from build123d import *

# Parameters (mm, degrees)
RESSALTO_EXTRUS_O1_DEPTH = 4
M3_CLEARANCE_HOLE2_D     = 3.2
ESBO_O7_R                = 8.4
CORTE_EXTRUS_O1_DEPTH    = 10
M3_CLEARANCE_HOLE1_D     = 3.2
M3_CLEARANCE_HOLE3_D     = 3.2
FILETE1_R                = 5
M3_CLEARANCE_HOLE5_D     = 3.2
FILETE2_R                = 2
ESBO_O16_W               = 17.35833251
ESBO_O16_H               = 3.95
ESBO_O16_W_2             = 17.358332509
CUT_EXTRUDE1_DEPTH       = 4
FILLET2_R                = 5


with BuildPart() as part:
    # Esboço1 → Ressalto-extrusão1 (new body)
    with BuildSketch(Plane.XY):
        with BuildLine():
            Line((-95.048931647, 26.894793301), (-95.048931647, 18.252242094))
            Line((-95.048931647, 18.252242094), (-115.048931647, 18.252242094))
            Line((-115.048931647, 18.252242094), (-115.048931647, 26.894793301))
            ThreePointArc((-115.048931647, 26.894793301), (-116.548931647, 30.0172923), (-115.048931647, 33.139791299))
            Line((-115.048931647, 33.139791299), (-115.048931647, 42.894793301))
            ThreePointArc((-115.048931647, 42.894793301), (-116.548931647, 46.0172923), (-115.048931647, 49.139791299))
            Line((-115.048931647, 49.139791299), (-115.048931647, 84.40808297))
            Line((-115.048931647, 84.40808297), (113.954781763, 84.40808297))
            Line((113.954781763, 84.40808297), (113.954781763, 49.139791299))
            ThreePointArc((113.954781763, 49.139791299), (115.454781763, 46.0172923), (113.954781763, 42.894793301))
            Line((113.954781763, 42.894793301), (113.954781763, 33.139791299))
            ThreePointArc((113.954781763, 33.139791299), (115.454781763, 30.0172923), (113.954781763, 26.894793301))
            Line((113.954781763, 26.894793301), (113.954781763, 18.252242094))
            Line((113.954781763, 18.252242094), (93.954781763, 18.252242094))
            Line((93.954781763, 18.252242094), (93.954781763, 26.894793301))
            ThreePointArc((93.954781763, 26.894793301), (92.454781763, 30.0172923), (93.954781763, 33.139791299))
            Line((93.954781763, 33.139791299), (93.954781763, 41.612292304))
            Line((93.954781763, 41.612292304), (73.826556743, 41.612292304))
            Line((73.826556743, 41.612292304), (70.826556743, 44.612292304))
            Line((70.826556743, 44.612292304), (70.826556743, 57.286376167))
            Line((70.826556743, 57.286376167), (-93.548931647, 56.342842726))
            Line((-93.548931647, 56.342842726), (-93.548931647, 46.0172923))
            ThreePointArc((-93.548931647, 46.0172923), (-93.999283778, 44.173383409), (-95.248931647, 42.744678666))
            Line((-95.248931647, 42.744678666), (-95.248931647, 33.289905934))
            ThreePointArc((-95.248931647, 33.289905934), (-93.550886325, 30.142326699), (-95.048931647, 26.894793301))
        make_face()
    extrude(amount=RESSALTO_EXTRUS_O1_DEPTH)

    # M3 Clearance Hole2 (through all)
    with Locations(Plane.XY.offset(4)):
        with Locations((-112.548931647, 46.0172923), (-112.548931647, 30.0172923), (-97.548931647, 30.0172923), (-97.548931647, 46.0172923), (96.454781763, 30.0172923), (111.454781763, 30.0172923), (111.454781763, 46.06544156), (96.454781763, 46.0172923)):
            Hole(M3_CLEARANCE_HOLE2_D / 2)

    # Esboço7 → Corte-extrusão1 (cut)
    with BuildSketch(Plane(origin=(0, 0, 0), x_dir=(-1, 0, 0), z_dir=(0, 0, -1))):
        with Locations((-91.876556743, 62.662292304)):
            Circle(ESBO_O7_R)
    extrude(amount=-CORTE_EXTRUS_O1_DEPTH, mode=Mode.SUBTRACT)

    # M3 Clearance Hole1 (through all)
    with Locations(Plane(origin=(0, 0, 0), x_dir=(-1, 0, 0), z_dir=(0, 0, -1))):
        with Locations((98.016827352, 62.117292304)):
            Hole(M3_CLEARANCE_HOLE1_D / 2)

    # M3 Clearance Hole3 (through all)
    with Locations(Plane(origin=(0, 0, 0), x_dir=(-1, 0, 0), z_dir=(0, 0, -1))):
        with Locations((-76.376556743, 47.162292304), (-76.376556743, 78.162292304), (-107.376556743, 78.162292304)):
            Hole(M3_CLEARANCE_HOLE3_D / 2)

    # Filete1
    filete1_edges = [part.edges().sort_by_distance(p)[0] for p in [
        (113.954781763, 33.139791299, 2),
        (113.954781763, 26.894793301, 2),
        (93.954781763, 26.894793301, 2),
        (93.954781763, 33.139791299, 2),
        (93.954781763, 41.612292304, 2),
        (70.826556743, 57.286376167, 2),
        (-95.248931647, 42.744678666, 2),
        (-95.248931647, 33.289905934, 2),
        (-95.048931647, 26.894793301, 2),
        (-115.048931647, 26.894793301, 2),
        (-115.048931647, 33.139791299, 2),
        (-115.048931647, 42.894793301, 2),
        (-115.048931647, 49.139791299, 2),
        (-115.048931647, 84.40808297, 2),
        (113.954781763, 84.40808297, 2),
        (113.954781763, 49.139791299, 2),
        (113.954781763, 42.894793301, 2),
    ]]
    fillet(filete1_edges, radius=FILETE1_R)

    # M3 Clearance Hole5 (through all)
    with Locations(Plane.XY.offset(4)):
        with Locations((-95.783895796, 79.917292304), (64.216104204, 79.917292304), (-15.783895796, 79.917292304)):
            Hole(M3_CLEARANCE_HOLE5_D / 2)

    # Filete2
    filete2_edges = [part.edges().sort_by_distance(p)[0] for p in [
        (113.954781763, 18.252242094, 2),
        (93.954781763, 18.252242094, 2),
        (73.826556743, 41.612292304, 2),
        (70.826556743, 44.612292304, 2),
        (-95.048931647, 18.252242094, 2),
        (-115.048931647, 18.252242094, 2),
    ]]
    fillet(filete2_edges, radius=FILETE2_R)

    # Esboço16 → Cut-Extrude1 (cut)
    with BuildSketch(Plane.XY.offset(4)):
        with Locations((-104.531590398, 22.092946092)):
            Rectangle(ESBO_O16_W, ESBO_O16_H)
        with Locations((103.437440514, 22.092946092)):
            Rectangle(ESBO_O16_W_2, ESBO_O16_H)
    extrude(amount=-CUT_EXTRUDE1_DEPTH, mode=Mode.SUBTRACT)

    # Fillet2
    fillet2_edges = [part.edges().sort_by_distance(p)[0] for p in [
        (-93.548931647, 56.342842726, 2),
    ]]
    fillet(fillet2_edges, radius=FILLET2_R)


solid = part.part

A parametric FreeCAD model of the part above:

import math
import FreeCAD as App
import Part
import Sketcher

V = App.Vector
Q = App.Units.Quantity


def edges_at(feature, points):
    """Names of the edges that pass closest to the given points."""
    edges = feature.Shape.Edges
    near = lambda p: min(range(len(edges)), key=lambda i: edges[i].distToShape(Part.Vertex(*p))[0])
    return sorted({f"Edge{near(p) + 1}" for p in points})

doc = App.newDocument("Part")
params = doc.addObject("Spreadsheet::Sheet", "Params")
for row, (alias, value) in enumerate([
    ("sketch1_radius", "4 mm"),
    ("sketch1_width", "20 mm"),
    ("sketch1_width2", "2.3 mm"),
    ("pad1_length", "4 mm"),
    ("sketch2_diameter", "3.2 mm"),
    ("hole_diameter", "3.2 mm"),
    ("sketch3_diameter", "16.8 mm"),
    ("pocket1_length", "10 mm"),
    ("sketch4_diameter", "3.2 mm"),
    ("hole2_diameter", "3.2 mm"),
    ("sketch5_diameter", "3.2 mm"),
    ("hole3_diameter", "3.2 mm"),
    ("fillet_radius", "5 mm"),
    ("sketch6_diameter", "3.2 mm"),
    ("hole4_diameter", "3.2 mm"),
    ("fillet2_radius", "2 mm"),
    ("sketch7_height", "3.95 mm"),
    ("pocket2_length", "4 mm"),
    ("fillet3_radius", "5 mm"),
], start=1):
    params.set(f"A{row}", alias)
    params.set(f"B{row}", "=" + value)
    params.setAlias(f"B{row}", alias)

body = doc.addObject("PartDesign::Body", "Body")

# Sketch on XY plane
sketch1 = body.newObject("Sketcher::SketchObject", "Sketch")
sketch1.AttachmentSupport = (doc.getObject("XY_Plane"), [""])
sketch1.MapMode = "FlatFace"
sketch1.addGeometry([
    Part.LineSegment(V(-95, 18.3, 0), V(-95, 26.9, 0)),  # 0
    Part.ArcOfCircle(Part.Circle(V(-97.5, 30, 0), V(0, 0, 1), 4), math.radians(-51), math.radians(55)),  # 1
    Part.LineSegment(V(-95.2, 33.3, 0), V(-95.2, 42.7, 0)),  # 2
    Part.ArcOfCircle(Part.Circle(V(-97.5, 46, 0), V(0, 0, 1), 4), math.radians(-55), math.radians(0)),  # 3
    Part.LineSegment(V(-93.5, 46, 0), V(-93.5, 56.3, 0)),  # 4
    Part.LineSegment(V(-93.5, 56.3, 0), V(70.8, 57.3, 0)),  # 5
    Part.LineSegment(V(70.8, 57.3, 0), V(70.8, 44.6, 0)),  # 6
    Part.LineSegment(V(70.8, 44.6, 0), V(73.8, 41.6, 0)),  # 7
    Part.LineSegment(V(73.8, 41.6, 0), V(94, 41.6, 0)),  # 8
    Part.LineSegment(V(94, 41.6, 0), V(94, 33.1, 0)),  # 9
    Part.ArcOfCircle(Part.Circle(V(96.5, 30, 0), V(0, 0, 1), 4), math.radians(129), math.radians(231)),  # 10
    Part.LineSegment(V(94, 26.9, 0), V(94, 18.3, 0)),  # 11
    Part.LineSegment(V(94, 18.3, 0), V(114, 18.3, 0)),  # 12
    Part.LineSegment(V(114, 18.3, 0), V(114, 26.9, 0)),  # 13
    Part.ArcOfCircle(Part.Circle(V(111.5, 30, 0), V(0, 0, 1), 4), math.radians(-51), math.radians(51)),  # 14
    Part.LineSegment(V(114, 33.1, 0), V(114, 42.9, 0)),  # 15
    Part.ArcOfCircle(Part.Circle(V(111.5, 46, 0), V(0, 0, 1), 4), math.radians(-51), math.radians(51)),  # 16
    Part.LineSegment(V(114, 49.1, 0), V(114, 84.4, 0)),  # 17
    Part.LineSegment(V(114, 84.4, 0), V(-115, 84.4, 0)),  # 18
    Part.LineSegment(V(-115, 84.4, 0), V(-115, 49.1, 0)),  # 19
    Part.ArcOfCircle(Part.Circle(V(-112.5, 46, 0), V(0, 0, 1), 4), math.radians(129), math.radians(231)),  # 20
    Part.LineSegment(V(-115, 42.9, 0), V(-115, 33.1, 0)),  # 21
    Part.ArcOfCircle(Part.Circle(V(-112.5, 30, 0), V(0, 0, 1), 4), math.radians(129), math.radians(231)),  # 22
    Part.LineSegment(V(-115, 26.9, 0), V(-115, 18.3, 0)),  # 23
    Part.LineSegment(V(-115, 18.3, 0), V(-95, 18.3, 0)),  # 24
], False)
sketch1.addConstraint([
    Sketcher.Constraint("Coincident", 0, 2, 1, 1),
    Sketcher.Constraint("Coincident", 1, 2, 2, 1),
    Sketcher.Constraint("Coincident", 2, 2, 3, 1),
    Sketcher.Constraint("Tangent", 3, 2, 4, 1),
    Sketcher.Constraint("Coincident", 4, 2, 5, 1),
    Sketcher.Constraint("Coincident", 5, 2, 6, 1),
    Sketcher.Constraint("Coincident", 6, 2, 7, 1),
    Sketcher.Constraint("Coincident", 7, 2, 8, 1),
    Sketcher.Constraint("Coincident", 8, 2, 9, 1),
    Sketcher.Constraint("Coincident", 9, 2, 10, 1),
    Sketcher.Constraint("Coincident", 10, 2, 11, 1),
    Sketcher.Constraint("Coincident", 11, 2, 12, 1),
    Sketcher.Constraint("Coincident", 12, 2, 13, 1),
    Sketcher.Constraint("Coincident", 13, 2, 14, 1),
    Sketcher.Constraint("Coincident", 14, 2, 15, 1),
    Sketcher.Constraint("Coincident", 15, 2, 16, 1),
    Sketcher.Constraint("Coincident", 16, 2, 17, 1),
    Sketcher.Constraint("Coincident", 17, 2, 18, 1),
    Sketcher.Constraint("Coincident", 18, 2, 19, 1),
    Sketcher.Constraint("Coincident", 19, 2, 20, 1),
    Sketcher.Constraint("Coincident", 20, 2, 21, 1),
    Sketcher.Constraint("Coincident", 21, 2, 22, 1),
    Sketcher.Constraint("Coincident", 22, 2, 23, 1),
    Sketcher.Constraint("Coincident", 23, 2, 24, 1),
    Sketcher.Constraint("Coincident", 24, 2, 0, 1),
    Sketcher.Constraint("Vertical", 0),
    Sketcher.Constraint("Vertical", 2),
    Sketcher.Constraint("Vertical", 4),
    Sketcher.Constraint("Vertical", 6),
    Sketcher.Constraint("Horizontal", 8),
    Sketcher.Constraint("Vertical", 9),
    Sketcher.Constraint("Vertical", 11),
    Sketcher.Constraint("Horizontal", 12),
    Sketcher.Constraint("Vertical", 13),
    Sketcher.Constraint("Vertical", 15),
    Sketcher.Constraint("Vertical", 17),
    Sketcher.Constraint("Horizontal", 18),
    Sketcher.Constraint("Vertical", 19),
    Sketcher.Constraint("Vertical", 21),
    Sketcher.Constraint("Vertical", 23),
    Sketcher.Constraint("Horizontal", 24),
    Sketcher.Constraint("Equal", 1, 3),
    Sketcher.Constraint("Equal", 3, 10),
    Sketcher.Constraint("Equal", 10, 14),
    Sketcher.Constraint("Equal", 14, 16),
    Sketcher.Constraint("Equal", 16, 20),
    Sketcher.Constraint("Equal", 20, 22),
    Sketcher.Constraint("Horizontal", 1, 3, 10, 3),
    Sketcher.Constraint("Horizontal", 10, 3, 14, 3),
    Sketcher.Constraint("Horizontal", 3, 3, 16, 3),
    Sketcher.Constraint("Horizontal", 16, 3, 20, 3),
    Sketcher.Constraint("Horizontal", 14, 3, 22, 3),
    Sketcher.Constraint("Horizontal", 0, 2, 10, 2),
    Sketcher.Constraint("Horizontal", 10, 2, 13, 2),
    Sketcher.Constraint("Horizontal", 9, 2, 14, 2),
    Sketcher.Constraint("Horizontal", 16, 2, 19, 2),
    Sketcher.Constraint("Horizontal", 15, 2, 20, 2),
    Sketcher.Constraint("Horizontal", 14, 2, 21, 2),
    Sketcher.Constraint("Horizontal", 13, 2, 22, 2),
    Sketcher.Constraint("Horizontal", 12, 2, 23, 2),
    Sketcher.Constraint("Vertical", 1, 3, 3, 3),
    Sketcher.Constraint("Vertical", 14, 3, 16, 3),
    Sketcher.Constraint("Vertical", 9, 2, 10, 2),
    Sketcher.Constraint("Vertical", 15, 2, 16, 2),
    Sketcher.Constraint("Equal", 12, 24),
    Sketcher.Constraint("Radius", 1, 4.0),
    Sketcher.Constraint("DistanceX", 12, 1, 12, 2, 20.0),
    Sketcher.Constraint("Angle", 7, Q("-45 deg")),
    Sketcher.Constraint("DistanceY", 1, 3, 3, 3, 16.0),
    Sketcher.Constraint("DistanceX", 10, 3, 14, 3, 15.0),
    Sketcher.Constraint("DistanceX", 6, 2, 7, 2, 3.0),
    Sketcher.Constraint("DistanceX", 1, 3, 1, 2, 2.3),
    Sketcher.Constraint("DistanceY", 9, 2, 9, 1, 8.472501),
    Sketcher.Constraint("DistanceY", 0, 1, 0, 2, 8.642551),
    Sketcher.Constraint("DistanceY", 4, 1, 4, 2, 10.32555),
    Sketcher.Constraint("DistanceY", 17, 1, 17, 2, 35.268292),
    Sketcher.Constraint("DistanceX", 8, 1, 8, 2, 20.128225),
    Sketcher.Constraint("DistanceX", 18, 2, 18, 1, 229.003713),
    Sketcher.Constraint("DistanceY", 6, 2, 6, 1, 12.674084),
    Sketcher.Constraint("DistanceX", 1, 3, -1, 1, 97.548932),
    Sketcher.Constraint("DistanceY", -1, 1, 2, 2, 42.744679),
])
sketch1.setExpression("Constraints[65]", "Params.sketch1_radius")
sketch1.setExpression("Constraints[66]", "Params.sketch1_width")
sketch1.setExpression("Constraints[71]", "Params.sketch1_width2")
pad1 = body.newObject("PartDesign::Pad", "Pad")
pad1.Profile = sketch1
pad1.setExpression("Length", "Params.pad1_length")

# Sketch on XY plane
sketch2 = body.newObject("Sketcher::SketchObject", "Sketch001")
sketch2.AttachmentSupport = (doc.getObject("XY_Plane"), [""])
sketch2.MapMode = "FlatFace"
sketch2.AttachmentOffset = App.Placement(V(0, 0, 4), App.Rotation())
sketch2.addGeometry([
    Part.Circle(V(-112.5, 46, 0), V(0, 0, 1), 1.6),  # 0
    Part.Circle(V(-112.5, 30, 0), V(0, 0, 1), 1.6),  # 1
    Part.Circle(V(-97.5, 30, 0), V(0, 0, 1), 1.6),  # 2
    Part.Circle(V(-97.5, 46, 0), V(0, 0, 1), 1.6),  # 3
    Part.Circle(V(96.5, 30, 0), V(0, 0, 1), 1.6),  # 4
    Part.Circle(V(111.5, 30, 0), V(0, 0, 1), 1.6),  # 5
    Part.Circle(V(111.5, 46.1, 0), V(0, 0, 1), 1.6),  # 6
    Part.Circle(V(96.5, 46, 0), V(0, 0, 1), 1.6),  # 7
], False)
sketch2.addConstraint([
    Sketcher.Constraint("Equal", 0, 1),
    Sketcher.Constraint("Equal", 1, 2),
    Sketcher.Constraint("Equal", 2, 3),
    Sketcher.Constraint("Equal", 3, 4),
    Sketcher.Constraint("Equal", 4, 5),
    Sketcher.Constraint("Equal", 5, 6),
    Sketcher.Constraint("Equal", 6, 7),
    Sketcher.Constraint("Horizontal", 1, 3, 2, 3),
    Sketcher.Constraint("Horizontal", 0, 3, 3, 3),
    Sketcher.Constraint("Horizontal", 2, 3, 4, 3),
    Sketcher.Constraint("Horizontal", 4, 3, 5, 3),
    Sketcher.Constraint("Horizontal", 3, 3, 7, 3),
    Sketcher.Constraint("Vertical", 0, 3, 1, 3),
    Sketcher.Constraint("Vertical", 2, 3, 3, 3),
    Sketcher.Constraint("Vertical", 5, 3, 6, 3),
    Sketcher.Constraint("Vertical", 4, 3, 7, 3),
    Sketcher.Constraint("Diameter", 0, 3.2),
    Sketcher.Constraint("DistanceY", 1, 3, 0, 3, 16.0),
    Sketcher.Constraint("DistanceX", 1, 3, 2, 3, 15.0),
    Sketcher.Constraint("DistanceX", 4, 3, 5, 3, 15.0),
    Sketcher.Constraint("DistanceX", 0, 3, -1, 1, 112.548932),
    Sketcher.Constraint("DistanceX", -1, 1, 4, 3, 96.454782),
    Sketcher.Constraint("DistanceY", -1, 1, 6, 3, 46.065442),
    Sketcher.Constraint("DistanceY", 5, 3, 6, 3, 16.048149),
])
sketch2.setExpression("Constraints[16]", "Params.sketch2_diameter")
doc.recompute()
hole = body.newObject("PartDesign::Hole", "Hole")
hole.Profile = sketch2
hole.ThreadType = "None"
hole.setExpression("Diameter", "Params.hole_diameter")
hole.DepthType = "ThroughAll"

# Sketch on XY plane
sketch3 = body.newObject("Sketcher::SketchObject", "Sketch002")
sketch3.AttachmentSupport = (doc.getObject("XY_Plane"), [""])
sketch3.MapMode = "FlatFace"
sketch3.addGeometry(Part.Circle(V(92, 63, 0), V(0, 0, 1), 8), False)
sketch3.addConstraint([
    Sketcher.Constraint("Diameter", 0, 16.8),
    Sketcher.Constraint("DistanceX", -1, 1, 0, 3, 91.876557),
    Sketcher.Constraint("DistanceY", -1, 1, 0, 3, 62.662292),
])
sketch3.setExpression("Constraints[0]", "Params.sketch3_diameter")
pocket1 = body.newObject("PartDesign::Pocket", "Pocket")
pocket1.Profile = sketch3
pocket1.setExpression("Length", "Params.pocket1_length")
pocket1.Reversed = True

# Sketch on XY plane
sketch4 = body.newObject("Sketcher::SketchObject", "Sketch003")
sketch4.AttachmentSupport = (doc.getObject("XY_Plane"), [""])
sketch4.MapMode = "FlatFace"
sketch4.addGeometry(Part.Circle(V(-98, 62.1, 0), V(0, 0, 1), 1.6), False)
sketch4.addConstraint([
    Sketcher.Constraint("Diameter", 0, 3.2),
    Sketcher.Constraint("DistanceX", 0, 3, -1, 1, 98.016827),
    Sketcher.Constraint("DistanceY", -1, 1, 0, 3, 62.117292),
])
sketch4.setExpression("Constraints[0]", "Params.sketch4_diameter")
doc.recompute()
hole2 = body.newObject("PartDesign::Hole", "Hole001")
hole2.Profile = sketch4
hole2.ThreadType = "None"
hole2.setExpression("Diameter", "Params.hole2_diameter")
hole2.DepthType = "ThroughAll"
hole2.Reversed = True

# Sketch on XY plane
sketch5 = body.newObject("Sketcher::SketchObject", "Sketch004")
sketch5.AttachmentSupport = (doc.getObject("XY_Plane"), [""])
sketch5.MapMode = "FlatFace"
sketch5.addGeometry([
    Part.Circle(V(76.4, 47.2, 0), V(0, 0, 1), 1.6),
    Part.Circle(V(76.4, 78.2, 0), V(0, 0, 1), 1.6),
    Part.Circle(V(107.4, 78.2, 0), V(0, 0, 1), 1.6),
], False)
sketch5.addConstraint([
    Sketcher.Constraint("Equal", 0, 1),
    Sketcher.Constraint("Equal", 1, 2),
    Sketcher.Constraint("Horizontal", 1, 3, 2, 3),
    Sketcher.Constraint("Vertical", 0, 3, 1, 3),
    Sketcher.Constraint("Diameter", 0, 3.2),
    Sketcher.Constraint("DistanceY", 0, 3, 1, 3, 31.0),
    Sketcher.Constraint("DistanceX", 1, 3, 2, 3, 31.0),
    Sketcher.Constraint("DistanceX", -1, 1, 0, 3, 76.376557),
    Sketcher.Constraint("DistanceY", -1, 1, 0, 3, 47.162292),
])
sketch5.setExpression("Constraints[4]", "Params.sketch5_diameter")
doc.recompute()
hole3 = body.newObject("PartDesign::Hole", "Hole002")
hole3.Profile = sketch5
hole3.ThreadType = "None"
hole3.setExpression("Diameter", "Params.hole3_diameter")
hole3.DepthType = "ThroughAll"
hole3.Reversed = True
doc.recompute()

fillet = body.newObject("PartDesign::Fillet", "Fillet")
fillet.Base = (hole3, edges_at(hole3, [
    (113.955, 33.14, 2),
    (113.955, 26.895, 2),
    (93.955, 26.895, 2),
    (93.955, 33.14, 2),
    (93.955, 41.612, 2),
    (70.827, 57.286, 2),
    (-95.249, 42.745, 2),
    (-95.249, 33.29, 2),
    (-95.049, 26.895, 2),
    (-115.049, 26.895, 2),
    (-115.049, 33.14, 2),
    (-115.049, 42.895, 2),
    (-115.049, 49.14, 2),
    (-115.049, 84.408, 2),
    (113.955, 84.408, 2),
    (113.955, 49.14, 2),
    (113.955, 42.895, 2),
]))
fillet.setExpression("Radius", "Params.fillet_radius")

# Sketch on XY plane
sketch6 = body.newObject("Sketcher::SketchObject", "Sketch005")
sketch6.AttachmentSupport = (doc.getObject("XY_Plane"), [""])
sketch6.MapMode = "FlatFace"
sketch6.AttachmentOffset = App.Placement(V(0, 0, 4), App.Rotation())
sketch6.addGeometry([
    Part.Circle(V(-95.8, 79.9, 0), V(0, 0, 1), 1.6),
    Part.Circle(V(64.2, 79.9, 0), V(0, 0, 1), 1.6),
    Part.Circle(V(-15.8, 79.9, 0), V(0, 0, 1), 1.6),
], False)
sketch6.addConstraint([
    Sketcher.Constraint("Equal", 0, 1),
    Sketcher.Constraint("Equal", 1, 2),
    Sketcher.Constraint("Horizontal", 0, 3, 1, 3),
    Sketcher.Constraint("Horizontal", 1, 3, 2, 3),
    Sketcher.Constraint("Diameter", 0, 3.2),
    Sketcher.Constraint("DistanceX", 0, 3, 1, 3, 160.0),
    Sketcher.Constraint("DistanceX", 0, 3, 2, 3, 80.0),
    Sketcher.Constraint("DistanceX", 0, 3, -1, 1, 95.783896),
    Sketcher.Constraint("DistanceY", -1, 1, 0, 3, 79.917292),
])
sketch6.setExpression("Constraints[4]", "Params.sketch6_diameter")
doc.recompute()
hole4 = body.newObject("PartDesign::Hole", "Hole003")
hole4.Profile = sketch6
hole4.ThreadType = "None"
hole4.setExpression("Diameter", "Params.hole4_diameter")
hole4.DepthType = "ThroughAll"
doc.recompute()

fillet2 = body.newObject("PartDesign::Fillet", "Fillet001")
fillet2.Base = (hole4, edges_at(hole4, [
    (113.955, 18.252, 2),
    (93.955, 18.252, 2),
    (73.827, 41.612, 2),
    (70.827, 44.612, 2),
    (-95.049, 18.252, 2),
    (-115.049, 18.252, 2),
]))
fillet2.setExpression("Radius", "Params.fillet2_radius")

# Sketch on XY plane
sketch7 = body.newObject("Sketcher::SketchObject", "Sketch006")
sketch7.AttachmentSupport = (doc.getObject("XY_Plane"), [""])
sketch7.MapMode = "FlatFace"
sketch7.AttachmentOffset = App.Placement(V(0, 0, 4), App.Rotation())
sketch7.addGeometry([
    Part.LineSegment(V(-113.2, 24.1, 0), V(-113.2, 20.1, 0)),  # 0
    Part.LineSegment(V(-113.2, 20.1, 0), V(-95.9, 20.1, 0)),  # 1
    Part.LineSegment(V(-95.9, 20.1, 0), V(-95.9, 24.1, 0)),  # 2
    Part.LineSegment(V(-95.9, 24.1, 0), V(-113.2, 24.1, 0)),  # 3
    Part.LineSegment(V(94.8, 24.1, 0), V(94.8, 20.1, 0)),  # 4
    Part.LineSegment(V(94.8, 20.1, 0), V(112.1, 20.1, 0)),  # 5
    Part.LineSegment(V(112.1, 20.1, 0), V(112.1, 24.1, 0)),  # 6
    Part.LineSegment(V(112.1, 24.1, 0), V(94.8, 24.1, 0)),  # 7
], False)
sketch7.addConstraint([
    Sketcher.Constraint("Coincident", 0, 2, 1, 1),
    Sketcher.Constraint("Coincident", 1, 2, 2, 1),
    Sketcher.Constraint("Coincident", 2, 2, 3, 1),
    Sketcher.Constraint("Coincident", 3, 2, 0, 1),
    Sketcher.Constraint("Coincident", 4, 2, 5, 1),
    Sketcher.Constraint("Coincident", 5, 2, 6, 1),
    Sketcher.Constraint("Coincident", 6, 2, 7, 1),
    Sketcher.Constraint("Coincident", 7, 2, 4, 1),
    Sketcher.Constraint("Vertical", 0),
    Sketcher.Constraint("Horizontal", 1),
    Sketcher.Constraint("Vertical", 2),
    Sketcher.Constraint("Horizontal", 3),
    Sketcher.Constraint("Vertical", 4),
    Sketcher.Constraint("Horizontal", 5),
    Sketcher.Constraint("Vertical", 6),
    Sketcher.Constraint("Horizontal", 7),
    Sketcher.Constraint("Horizontal", 1, 2, 4, 2),
    Sketcher.Constraint("Horizontal", 3, 2, 6, 2),
    Sketcher.Constraint("Equal", 3, 5),
    Sketcher.Constraint("DistanceY", 0, 2, 0, 1, 3.95),
    Sketcher.Constraint("DistanceX", 1, 2, 4, 2, 190.610698),
    Sketcher.Constraint("DistanceX", 1, 1, 1, 2, 17.358333),
    Sketcher.Constraint("DistanceX", 0, 2, -1, 1, 113.210757),
    Sketcher.Constraint("DistanceY", -1, 1, 0, 2, 20.117946),
])
sketch7.setExpression("Constraints[19]", "Params.sketch7_height")
pocket2 = body.newObject("PartDesign::Pocket", "Pocket001")
pocket2.Profile = sketch7
pocket2.setExpression("Length", "Params.pocket2_length")
doc.recompute()

fillet3 = body.newObject("PartDesign::Fillet", "Fillet002")
fillet3.Base = (pocket2, edges_at(pocket2, [(-93.549, 56.343, 2)]))
fillet3.setExpression("Radius", "Params.fillet3_radius")

doc.recompute()
